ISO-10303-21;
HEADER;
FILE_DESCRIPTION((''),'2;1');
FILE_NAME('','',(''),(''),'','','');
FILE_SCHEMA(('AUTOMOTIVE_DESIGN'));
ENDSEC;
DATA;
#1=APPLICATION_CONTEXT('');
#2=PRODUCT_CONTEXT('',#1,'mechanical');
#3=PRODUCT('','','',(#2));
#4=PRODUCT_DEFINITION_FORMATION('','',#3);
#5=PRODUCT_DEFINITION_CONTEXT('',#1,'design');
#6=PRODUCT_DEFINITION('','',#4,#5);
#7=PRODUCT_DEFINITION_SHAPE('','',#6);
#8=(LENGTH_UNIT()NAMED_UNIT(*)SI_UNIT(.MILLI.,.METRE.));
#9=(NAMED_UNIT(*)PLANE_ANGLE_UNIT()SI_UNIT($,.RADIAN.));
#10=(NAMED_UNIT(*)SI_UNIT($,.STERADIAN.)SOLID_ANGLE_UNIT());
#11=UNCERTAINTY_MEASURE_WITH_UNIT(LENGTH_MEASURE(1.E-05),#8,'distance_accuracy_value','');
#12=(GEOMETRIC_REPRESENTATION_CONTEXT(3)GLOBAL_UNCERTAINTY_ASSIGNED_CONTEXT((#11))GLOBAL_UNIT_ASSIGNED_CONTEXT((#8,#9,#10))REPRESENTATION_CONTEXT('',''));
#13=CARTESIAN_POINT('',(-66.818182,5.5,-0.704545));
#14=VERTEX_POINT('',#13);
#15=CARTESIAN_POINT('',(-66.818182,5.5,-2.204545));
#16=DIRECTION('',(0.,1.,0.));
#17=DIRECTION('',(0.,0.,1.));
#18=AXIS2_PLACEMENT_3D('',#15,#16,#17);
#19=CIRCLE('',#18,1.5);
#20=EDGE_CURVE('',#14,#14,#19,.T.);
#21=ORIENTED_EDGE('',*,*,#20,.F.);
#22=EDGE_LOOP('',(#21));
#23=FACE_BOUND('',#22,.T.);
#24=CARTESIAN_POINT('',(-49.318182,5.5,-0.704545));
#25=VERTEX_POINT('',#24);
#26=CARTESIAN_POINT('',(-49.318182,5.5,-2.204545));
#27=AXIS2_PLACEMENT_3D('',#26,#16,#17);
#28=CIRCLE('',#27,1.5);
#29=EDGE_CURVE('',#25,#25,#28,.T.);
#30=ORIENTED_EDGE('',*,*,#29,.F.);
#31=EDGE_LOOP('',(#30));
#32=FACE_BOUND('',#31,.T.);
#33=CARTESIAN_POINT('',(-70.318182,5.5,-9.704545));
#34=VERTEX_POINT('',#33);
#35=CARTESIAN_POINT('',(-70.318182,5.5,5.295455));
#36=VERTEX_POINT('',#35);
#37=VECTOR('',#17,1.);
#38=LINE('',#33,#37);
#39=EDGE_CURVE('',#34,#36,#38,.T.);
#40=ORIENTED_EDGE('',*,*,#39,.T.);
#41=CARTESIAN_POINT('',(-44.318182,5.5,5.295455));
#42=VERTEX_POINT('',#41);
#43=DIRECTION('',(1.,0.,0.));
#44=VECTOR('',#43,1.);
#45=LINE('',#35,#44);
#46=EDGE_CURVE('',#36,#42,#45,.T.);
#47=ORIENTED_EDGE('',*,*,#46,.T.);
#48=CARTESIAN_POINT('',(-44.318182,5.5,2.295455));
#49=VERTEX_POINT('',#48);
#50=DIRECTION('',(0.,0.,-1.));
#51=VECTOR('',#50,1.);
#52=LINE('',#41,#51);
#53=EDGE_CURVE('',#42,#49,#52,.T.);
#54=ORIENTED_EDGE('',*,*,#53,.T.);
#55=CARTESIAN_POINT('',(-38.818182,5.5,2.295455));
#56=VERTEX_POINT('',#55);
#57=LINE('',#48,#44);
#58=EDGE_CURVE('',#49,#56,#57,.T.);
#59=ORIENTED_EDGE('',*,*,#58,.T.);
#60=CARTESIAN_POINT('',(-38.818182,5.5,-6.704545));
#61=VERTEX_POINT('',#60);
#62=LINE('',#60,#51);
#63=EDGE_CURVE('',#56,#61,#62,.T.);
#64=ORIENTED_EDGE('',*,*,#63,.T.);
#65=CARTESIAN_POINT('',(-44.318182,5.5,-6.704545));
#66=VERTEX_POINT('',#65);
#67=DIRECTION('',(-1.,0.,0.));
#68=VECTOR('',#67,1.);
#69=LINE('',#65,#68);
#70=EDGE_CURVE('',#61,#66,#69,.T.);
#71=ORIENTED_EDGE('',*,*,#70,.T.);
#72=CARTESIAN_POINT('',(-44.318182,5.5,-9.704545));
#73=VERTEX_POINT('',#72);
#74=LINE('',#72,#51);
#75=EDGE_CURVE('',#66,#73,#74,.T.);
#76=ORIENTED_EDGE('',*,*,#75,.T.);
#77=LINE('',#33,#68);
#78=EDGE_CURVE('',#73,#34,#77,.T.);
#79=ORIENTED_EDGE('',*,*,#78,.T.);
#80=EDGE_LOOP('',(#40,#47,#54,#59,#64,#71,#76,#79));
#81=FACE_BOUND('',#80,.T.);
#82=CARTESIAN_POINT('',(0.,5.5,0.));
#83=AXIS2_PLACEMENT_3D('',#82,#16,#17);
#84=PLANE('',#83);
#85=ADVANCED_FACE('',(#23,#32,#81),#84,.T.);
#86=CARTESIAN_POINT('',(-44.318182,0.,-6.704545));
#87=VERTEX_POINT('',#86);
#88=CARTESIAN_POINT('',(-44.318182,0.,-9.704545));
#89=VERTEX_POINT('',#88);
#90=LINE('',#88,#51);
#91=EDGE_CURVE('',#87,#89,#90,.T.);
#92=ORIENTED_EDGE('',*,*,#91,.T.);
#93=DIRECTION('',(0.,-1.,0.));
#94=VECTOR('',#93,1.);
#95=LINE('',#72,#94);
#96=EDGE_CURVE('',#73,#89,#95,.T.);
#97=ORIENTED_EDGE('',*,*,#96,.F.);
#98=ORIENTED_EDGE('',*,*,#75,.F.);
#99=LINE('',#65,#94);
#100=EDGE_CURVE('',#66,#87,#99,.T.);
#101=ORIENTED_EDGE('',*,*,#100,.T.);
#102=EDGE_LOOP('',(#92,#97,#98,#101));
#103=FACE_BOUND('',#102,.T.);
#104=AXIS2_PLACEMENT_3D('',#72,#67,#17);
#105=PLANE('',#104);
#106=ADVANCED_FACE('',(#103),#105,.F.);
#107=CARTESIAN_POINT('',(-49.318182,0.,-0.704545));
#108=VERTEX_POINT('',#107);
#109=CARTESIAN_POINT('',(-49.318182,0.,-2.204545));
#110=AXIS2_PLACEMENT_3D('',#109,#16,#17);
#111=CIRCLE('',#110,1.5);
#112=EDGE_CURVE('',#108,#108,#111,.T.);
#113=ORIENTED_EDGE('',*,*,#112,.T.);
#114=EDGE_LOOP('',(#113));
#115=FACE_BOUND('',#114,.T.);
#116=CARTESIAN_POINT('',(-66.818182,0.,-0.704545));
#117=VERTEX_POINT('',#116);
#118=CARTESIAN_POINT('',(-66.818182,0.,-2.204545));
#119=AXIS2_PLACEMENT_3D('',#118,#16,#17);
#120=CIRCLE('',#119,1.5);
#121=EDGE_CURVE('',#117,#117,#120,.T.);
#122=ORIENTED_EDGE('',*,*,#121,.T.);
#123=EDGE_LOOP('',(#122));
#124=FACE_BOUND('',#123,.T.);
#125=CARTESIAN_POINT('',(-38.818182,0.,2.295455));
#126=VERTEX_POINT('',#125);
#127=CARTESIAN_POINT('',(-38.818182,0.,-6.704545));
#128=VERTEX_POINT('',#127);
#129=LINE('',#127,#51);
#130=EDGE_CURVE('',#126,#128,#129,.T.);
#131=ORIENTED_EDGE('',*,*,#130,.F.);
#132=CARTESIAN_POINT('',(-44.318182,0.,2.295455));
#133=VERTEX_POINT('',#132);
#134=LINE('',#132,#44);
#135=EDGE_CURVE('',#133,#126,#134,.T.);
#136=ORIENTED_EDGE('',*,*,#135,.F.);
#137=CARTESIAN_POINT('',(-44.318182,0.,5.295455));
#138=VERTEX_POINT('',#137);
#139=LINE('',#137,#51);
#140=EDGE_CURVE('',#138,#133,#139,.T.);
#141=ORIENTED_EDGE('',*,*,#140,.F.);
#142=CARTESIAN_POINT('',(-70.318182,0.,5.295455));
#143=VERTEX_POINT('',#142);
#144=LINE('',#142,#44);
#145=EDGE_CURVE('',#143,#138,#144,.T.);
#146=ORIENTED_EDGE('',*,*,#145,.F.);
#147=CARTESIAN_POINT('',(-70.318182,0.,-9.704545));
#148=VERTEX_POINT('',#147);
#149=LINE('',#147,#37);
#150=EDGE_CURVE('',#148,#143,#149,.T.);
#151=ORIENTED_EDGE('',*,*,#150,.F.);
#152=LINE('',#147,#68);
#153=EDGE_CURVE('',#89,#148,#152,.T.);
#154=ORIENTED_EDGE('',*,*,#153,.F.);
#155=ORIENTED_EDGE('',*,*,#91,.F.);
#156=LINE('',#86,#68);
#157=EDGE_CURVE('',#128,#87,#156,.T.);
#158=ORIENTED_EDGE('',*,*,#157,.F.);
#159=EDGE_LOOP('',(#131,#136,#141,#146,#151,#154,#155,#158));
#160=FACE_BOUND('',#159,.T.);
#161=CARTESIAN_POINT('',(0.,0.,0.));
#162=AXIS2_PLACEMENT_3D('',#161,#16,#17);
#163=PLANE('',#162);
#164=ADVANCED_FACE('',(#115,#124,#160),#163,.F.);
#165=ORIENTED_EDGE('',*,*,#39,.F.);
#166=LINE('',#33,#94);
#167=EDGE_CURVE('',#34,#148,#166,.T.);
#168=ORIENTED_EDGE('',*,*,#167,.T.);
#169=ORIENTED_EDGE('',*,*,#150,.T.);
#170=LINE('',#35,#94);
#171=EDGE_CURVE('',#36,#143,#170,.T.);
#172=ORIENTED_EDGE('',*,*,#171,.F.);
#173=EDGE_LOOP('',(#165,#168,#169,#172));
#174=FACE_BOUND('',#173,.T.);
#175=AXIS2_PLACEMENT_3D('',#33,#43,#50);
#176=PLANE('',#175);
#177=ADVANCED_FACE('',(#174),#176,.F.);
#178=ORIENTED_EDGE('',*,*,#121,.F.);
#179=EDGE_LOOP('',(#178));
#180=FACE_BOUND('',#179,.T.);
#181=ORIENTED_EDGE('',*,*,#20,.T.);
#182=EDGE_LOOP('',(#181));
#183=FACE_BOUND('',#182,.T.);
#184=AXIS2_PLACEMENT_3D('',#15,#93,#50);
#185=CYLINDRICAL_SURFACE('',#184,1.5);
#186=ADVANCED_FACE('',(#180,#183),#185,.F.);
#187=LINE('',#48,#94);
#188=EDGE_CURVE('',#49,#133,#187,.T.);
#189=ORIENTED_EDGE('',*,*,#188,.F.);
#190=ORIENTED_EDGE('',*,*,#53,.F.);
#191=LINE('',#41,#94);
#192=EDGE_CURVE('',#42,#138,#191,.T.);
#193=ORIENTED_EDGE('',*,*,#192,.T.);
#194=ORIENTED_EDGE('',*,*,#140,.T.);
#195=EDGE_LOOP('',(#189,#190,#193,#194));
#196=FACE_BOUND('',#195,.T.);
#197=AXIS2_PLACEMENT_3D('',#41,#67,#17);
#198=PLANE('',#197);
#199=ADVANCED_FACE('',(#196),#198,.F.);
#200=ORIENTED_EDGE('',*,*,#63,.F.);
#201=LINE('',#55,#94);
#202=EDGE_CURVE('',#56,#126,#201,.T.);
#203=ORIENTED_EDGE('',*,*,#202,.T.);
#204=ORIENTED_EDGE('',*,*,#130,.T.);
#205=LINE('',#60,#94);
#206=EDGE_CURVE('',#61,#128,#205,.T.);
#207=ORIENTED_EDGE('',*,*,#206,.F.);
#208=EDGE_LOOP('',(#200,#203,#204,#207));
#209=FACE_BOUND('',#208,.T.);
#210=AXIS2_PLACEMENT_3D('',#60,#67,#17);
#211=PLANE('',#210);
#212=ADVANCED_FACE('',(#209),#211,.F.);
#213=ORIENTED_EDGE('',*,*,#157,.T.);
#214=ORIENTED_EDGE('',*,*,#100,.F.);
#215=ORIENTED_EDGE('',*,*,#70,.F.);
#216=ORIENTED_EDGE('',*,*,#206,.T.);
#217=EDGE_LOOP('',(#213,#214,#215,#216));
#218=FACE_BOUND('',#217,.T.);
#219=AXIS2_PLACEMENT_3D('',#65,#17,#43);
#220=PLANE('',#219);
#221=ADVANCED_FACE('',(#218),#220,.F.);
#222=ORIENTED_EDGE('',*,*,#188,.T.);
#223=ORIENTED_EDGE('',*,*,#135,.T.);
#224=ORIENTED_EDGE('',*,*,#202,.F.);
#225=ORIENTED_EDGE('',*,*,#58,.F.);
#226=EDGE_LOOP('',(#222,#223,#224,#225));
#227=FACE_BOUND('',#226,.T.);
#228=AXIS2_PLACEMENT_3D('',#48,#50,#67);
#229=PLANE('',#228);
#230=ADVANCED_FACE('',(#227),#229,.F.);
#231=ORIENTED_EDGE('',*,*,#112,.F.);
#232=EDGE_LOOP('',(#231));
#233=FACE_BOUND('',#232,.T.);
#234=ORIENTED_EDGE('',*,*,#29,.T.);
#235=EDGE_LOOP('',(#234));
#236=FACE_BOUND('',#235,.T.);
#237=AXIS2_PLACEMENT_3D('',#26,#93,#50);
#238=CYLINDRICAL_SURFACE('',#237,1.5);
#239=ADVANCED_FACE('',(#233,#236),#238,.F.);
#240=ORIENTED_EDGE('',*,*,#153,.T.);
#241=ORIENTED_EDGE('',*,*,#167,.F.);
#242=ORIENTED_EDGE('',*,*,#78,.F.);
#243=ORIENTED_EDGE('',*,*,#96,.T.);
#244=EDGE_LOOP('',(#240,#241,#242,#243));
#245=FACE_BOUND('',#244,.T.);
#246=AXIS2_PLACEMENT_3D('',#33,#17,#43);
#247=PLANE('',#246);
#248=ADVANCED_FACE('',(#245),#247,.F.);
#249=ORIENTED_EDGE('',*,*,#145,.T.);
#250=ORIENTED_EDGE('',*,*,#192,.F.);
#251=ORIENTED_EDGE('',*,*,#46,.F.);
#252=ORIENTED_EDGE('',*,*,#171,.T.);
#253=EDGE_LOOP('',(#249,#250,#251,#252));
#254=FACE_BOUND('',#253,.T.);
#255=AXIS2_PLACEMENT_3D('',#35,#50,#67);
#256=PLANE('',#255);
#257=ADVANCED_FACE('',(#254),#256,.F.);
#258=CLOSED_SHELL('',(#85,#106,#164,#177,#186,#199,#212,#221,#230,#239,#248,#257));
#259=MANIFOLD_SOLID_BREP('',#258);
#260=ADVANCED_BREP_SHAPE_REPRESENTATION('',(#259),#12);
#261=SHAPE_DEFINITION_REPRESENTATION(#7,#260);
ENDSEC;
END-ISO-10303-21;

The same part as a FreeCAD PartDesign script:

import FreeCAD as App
import Part
import Sketcher

V = App.Vector


def add_polygon(sketch, points):
    """Adds a closed chain of lines whose ends are joined by coincident constraints."""
    first, n = sketch.GeometryCount, len(points)
    for a, b in zip(points, points[1:] + points[:1]):
        sketch.addGeometry(Part.LineSegment(App.Vector(*a, 0), App.Vector(*b, 0)), False)
    for i in range(n):
        sketch.addConstraint(Sketcher.Constraint("Coincident", first + i, 2, first + (i + 1) % n, 1))

doc = App.newDocument("Part")
params = doc.addObject("Spreadsheet::Sheet", "Params")
for row, (alias, value) in enumerate([
    ("sketch1_diameter", "3 mm"),
    ("sketch1_width", "26 mm"),
    ("sketch1_height", "15 mm"),
    ("sketch1_height2", "3 mm"),
    ("sketch1_width2", "5.5 mm"),
    ("pad1_length", "5.5 mm"),
], start=1):
    params.set(f"A{row}", alias)
    params.set(f"B{row}", "=" + value)
    params.setAlias(f"B{row}", alias)

body = doc.addObject("PartDesign::Body", "Body")

# Sketch on XZ plane
sketch1 = body.newObject("Sketcher::SketchObject", "Sketch")
sketch1.AttachmentSupport = (doc.getObject("XZ_Plane"), [""])
sketch1.MapMode = "FlatFace"
add_polygon(sketch1, [(-44.318182, -9.704545), (-70.318182, -9.704545), (-70.318182, 5.295455), (-44.318182, 5.295455), (-44.318182, 2.295455), (-38.818182, 2.295455), (-38.818182, -6.704545), (-44.318182, -6.704545)])  # lines 0-7
sketch1.addGeometry(Part.Circle(V(-49.318182, -2.204545, 0), V(0, 0, 1), 1.5), False)  # 8
sketch1.addGeometry(Part.Circle(V(-66.818182, -2.204545, 0), V(0, 0, 1), 1.5), False)  # 9
sketch1.addConstraint(Sketcher.Constraint("Horizontal", 0))
sketch1.addConstraint(Sketcher.Constraint("Vertical", 1))
sketch1.addConstraint(Sketcher.Constraint("Horizontal", 2))
sketch1.addConstraint(Sketcher.Constraint("Vertical", 3))
sketch1.addConstraint(Sketcher.Constraint("Horizontal", 4))
sketch1.addConstraint(Sketcher.Constraint("Vertical", 5))
sketch1.addConstraint(Sketcher.Constraint("Horizontal", 6))
sketch1.addConstraint(Sketcher.Constraint("Vertical", 7))
sketch1.addConstraint(Sketcher.Constraint("Equal", 8, 9))
sketch1.addConstraint(Sketcher.Constraint("Horizontal", 8, 3, 9, 3))
sketch1.addConstraint(Sketcher.Constraint("Vertical", 3, 2, 6, 2))
sketch1.addConstraint(Sketcher.Constraint("Equal", 3, 7))
sketch1.addConstraint(Sketcher.Constraint("Diameter", 8, 3.0))
sketch1.addConstraint(Sketcher.Constraint("DistanceX", 0, 2, 0, 1, 26.0))
sketch1.addConstraint(Sketcher.Constraint("DistanceY", 1, 1, 1, 2, 15.0))
sketch1.addConstraint(Sketcher.Constraint("DistanceY", 3, 2, 3, 1, 3.0))
sketch1.addConstraint(Sketcher.Constraint("DistanceX", 4, 1, 4, 2, 5.5))
sketch1.addConstraint(Sketcher.Constraint("DistanceX", 0, 2, 8, 3, 21.0))
sketch1.addConstraint(Sketcher.Constraint("DistanceX", 9, 3, 4, 2, 28.0))
sketch1.addConstraint(Sketcher.Constraint("DistanceY", 0, 2, 9, 3, 7.5))
sketch1.addConstraint(Sketcher.Constraint("DistanceX", 8, 3, -1, 1, 49.318182))
sketch1.addConstraint(Sketcher.Constraint("DistanceY", 8, 3, -1, 1, 2.204545))
sketch1.setExpression("Constraints[20]", "Params.sketch1_diameter")
sketch1.setExpression("Constraints[21]", "Params.sketch1_width")
sketch1.setExpression("Constraints[22]", "Params.sketch1_height")
sketch1.setExpression("Constraints[23]", "Params.sketch1_height2")
sketch1.setExpression("Constraints[24]", "Params.sketch1_width2")
pad1 = body.newObject("PartDesign::Pad", "Pad")
pad1.Profile = sketch1
pad1.setExpression("Length", "Params.pad1_length")
pad1.Reversed = True

doc.recompute()
